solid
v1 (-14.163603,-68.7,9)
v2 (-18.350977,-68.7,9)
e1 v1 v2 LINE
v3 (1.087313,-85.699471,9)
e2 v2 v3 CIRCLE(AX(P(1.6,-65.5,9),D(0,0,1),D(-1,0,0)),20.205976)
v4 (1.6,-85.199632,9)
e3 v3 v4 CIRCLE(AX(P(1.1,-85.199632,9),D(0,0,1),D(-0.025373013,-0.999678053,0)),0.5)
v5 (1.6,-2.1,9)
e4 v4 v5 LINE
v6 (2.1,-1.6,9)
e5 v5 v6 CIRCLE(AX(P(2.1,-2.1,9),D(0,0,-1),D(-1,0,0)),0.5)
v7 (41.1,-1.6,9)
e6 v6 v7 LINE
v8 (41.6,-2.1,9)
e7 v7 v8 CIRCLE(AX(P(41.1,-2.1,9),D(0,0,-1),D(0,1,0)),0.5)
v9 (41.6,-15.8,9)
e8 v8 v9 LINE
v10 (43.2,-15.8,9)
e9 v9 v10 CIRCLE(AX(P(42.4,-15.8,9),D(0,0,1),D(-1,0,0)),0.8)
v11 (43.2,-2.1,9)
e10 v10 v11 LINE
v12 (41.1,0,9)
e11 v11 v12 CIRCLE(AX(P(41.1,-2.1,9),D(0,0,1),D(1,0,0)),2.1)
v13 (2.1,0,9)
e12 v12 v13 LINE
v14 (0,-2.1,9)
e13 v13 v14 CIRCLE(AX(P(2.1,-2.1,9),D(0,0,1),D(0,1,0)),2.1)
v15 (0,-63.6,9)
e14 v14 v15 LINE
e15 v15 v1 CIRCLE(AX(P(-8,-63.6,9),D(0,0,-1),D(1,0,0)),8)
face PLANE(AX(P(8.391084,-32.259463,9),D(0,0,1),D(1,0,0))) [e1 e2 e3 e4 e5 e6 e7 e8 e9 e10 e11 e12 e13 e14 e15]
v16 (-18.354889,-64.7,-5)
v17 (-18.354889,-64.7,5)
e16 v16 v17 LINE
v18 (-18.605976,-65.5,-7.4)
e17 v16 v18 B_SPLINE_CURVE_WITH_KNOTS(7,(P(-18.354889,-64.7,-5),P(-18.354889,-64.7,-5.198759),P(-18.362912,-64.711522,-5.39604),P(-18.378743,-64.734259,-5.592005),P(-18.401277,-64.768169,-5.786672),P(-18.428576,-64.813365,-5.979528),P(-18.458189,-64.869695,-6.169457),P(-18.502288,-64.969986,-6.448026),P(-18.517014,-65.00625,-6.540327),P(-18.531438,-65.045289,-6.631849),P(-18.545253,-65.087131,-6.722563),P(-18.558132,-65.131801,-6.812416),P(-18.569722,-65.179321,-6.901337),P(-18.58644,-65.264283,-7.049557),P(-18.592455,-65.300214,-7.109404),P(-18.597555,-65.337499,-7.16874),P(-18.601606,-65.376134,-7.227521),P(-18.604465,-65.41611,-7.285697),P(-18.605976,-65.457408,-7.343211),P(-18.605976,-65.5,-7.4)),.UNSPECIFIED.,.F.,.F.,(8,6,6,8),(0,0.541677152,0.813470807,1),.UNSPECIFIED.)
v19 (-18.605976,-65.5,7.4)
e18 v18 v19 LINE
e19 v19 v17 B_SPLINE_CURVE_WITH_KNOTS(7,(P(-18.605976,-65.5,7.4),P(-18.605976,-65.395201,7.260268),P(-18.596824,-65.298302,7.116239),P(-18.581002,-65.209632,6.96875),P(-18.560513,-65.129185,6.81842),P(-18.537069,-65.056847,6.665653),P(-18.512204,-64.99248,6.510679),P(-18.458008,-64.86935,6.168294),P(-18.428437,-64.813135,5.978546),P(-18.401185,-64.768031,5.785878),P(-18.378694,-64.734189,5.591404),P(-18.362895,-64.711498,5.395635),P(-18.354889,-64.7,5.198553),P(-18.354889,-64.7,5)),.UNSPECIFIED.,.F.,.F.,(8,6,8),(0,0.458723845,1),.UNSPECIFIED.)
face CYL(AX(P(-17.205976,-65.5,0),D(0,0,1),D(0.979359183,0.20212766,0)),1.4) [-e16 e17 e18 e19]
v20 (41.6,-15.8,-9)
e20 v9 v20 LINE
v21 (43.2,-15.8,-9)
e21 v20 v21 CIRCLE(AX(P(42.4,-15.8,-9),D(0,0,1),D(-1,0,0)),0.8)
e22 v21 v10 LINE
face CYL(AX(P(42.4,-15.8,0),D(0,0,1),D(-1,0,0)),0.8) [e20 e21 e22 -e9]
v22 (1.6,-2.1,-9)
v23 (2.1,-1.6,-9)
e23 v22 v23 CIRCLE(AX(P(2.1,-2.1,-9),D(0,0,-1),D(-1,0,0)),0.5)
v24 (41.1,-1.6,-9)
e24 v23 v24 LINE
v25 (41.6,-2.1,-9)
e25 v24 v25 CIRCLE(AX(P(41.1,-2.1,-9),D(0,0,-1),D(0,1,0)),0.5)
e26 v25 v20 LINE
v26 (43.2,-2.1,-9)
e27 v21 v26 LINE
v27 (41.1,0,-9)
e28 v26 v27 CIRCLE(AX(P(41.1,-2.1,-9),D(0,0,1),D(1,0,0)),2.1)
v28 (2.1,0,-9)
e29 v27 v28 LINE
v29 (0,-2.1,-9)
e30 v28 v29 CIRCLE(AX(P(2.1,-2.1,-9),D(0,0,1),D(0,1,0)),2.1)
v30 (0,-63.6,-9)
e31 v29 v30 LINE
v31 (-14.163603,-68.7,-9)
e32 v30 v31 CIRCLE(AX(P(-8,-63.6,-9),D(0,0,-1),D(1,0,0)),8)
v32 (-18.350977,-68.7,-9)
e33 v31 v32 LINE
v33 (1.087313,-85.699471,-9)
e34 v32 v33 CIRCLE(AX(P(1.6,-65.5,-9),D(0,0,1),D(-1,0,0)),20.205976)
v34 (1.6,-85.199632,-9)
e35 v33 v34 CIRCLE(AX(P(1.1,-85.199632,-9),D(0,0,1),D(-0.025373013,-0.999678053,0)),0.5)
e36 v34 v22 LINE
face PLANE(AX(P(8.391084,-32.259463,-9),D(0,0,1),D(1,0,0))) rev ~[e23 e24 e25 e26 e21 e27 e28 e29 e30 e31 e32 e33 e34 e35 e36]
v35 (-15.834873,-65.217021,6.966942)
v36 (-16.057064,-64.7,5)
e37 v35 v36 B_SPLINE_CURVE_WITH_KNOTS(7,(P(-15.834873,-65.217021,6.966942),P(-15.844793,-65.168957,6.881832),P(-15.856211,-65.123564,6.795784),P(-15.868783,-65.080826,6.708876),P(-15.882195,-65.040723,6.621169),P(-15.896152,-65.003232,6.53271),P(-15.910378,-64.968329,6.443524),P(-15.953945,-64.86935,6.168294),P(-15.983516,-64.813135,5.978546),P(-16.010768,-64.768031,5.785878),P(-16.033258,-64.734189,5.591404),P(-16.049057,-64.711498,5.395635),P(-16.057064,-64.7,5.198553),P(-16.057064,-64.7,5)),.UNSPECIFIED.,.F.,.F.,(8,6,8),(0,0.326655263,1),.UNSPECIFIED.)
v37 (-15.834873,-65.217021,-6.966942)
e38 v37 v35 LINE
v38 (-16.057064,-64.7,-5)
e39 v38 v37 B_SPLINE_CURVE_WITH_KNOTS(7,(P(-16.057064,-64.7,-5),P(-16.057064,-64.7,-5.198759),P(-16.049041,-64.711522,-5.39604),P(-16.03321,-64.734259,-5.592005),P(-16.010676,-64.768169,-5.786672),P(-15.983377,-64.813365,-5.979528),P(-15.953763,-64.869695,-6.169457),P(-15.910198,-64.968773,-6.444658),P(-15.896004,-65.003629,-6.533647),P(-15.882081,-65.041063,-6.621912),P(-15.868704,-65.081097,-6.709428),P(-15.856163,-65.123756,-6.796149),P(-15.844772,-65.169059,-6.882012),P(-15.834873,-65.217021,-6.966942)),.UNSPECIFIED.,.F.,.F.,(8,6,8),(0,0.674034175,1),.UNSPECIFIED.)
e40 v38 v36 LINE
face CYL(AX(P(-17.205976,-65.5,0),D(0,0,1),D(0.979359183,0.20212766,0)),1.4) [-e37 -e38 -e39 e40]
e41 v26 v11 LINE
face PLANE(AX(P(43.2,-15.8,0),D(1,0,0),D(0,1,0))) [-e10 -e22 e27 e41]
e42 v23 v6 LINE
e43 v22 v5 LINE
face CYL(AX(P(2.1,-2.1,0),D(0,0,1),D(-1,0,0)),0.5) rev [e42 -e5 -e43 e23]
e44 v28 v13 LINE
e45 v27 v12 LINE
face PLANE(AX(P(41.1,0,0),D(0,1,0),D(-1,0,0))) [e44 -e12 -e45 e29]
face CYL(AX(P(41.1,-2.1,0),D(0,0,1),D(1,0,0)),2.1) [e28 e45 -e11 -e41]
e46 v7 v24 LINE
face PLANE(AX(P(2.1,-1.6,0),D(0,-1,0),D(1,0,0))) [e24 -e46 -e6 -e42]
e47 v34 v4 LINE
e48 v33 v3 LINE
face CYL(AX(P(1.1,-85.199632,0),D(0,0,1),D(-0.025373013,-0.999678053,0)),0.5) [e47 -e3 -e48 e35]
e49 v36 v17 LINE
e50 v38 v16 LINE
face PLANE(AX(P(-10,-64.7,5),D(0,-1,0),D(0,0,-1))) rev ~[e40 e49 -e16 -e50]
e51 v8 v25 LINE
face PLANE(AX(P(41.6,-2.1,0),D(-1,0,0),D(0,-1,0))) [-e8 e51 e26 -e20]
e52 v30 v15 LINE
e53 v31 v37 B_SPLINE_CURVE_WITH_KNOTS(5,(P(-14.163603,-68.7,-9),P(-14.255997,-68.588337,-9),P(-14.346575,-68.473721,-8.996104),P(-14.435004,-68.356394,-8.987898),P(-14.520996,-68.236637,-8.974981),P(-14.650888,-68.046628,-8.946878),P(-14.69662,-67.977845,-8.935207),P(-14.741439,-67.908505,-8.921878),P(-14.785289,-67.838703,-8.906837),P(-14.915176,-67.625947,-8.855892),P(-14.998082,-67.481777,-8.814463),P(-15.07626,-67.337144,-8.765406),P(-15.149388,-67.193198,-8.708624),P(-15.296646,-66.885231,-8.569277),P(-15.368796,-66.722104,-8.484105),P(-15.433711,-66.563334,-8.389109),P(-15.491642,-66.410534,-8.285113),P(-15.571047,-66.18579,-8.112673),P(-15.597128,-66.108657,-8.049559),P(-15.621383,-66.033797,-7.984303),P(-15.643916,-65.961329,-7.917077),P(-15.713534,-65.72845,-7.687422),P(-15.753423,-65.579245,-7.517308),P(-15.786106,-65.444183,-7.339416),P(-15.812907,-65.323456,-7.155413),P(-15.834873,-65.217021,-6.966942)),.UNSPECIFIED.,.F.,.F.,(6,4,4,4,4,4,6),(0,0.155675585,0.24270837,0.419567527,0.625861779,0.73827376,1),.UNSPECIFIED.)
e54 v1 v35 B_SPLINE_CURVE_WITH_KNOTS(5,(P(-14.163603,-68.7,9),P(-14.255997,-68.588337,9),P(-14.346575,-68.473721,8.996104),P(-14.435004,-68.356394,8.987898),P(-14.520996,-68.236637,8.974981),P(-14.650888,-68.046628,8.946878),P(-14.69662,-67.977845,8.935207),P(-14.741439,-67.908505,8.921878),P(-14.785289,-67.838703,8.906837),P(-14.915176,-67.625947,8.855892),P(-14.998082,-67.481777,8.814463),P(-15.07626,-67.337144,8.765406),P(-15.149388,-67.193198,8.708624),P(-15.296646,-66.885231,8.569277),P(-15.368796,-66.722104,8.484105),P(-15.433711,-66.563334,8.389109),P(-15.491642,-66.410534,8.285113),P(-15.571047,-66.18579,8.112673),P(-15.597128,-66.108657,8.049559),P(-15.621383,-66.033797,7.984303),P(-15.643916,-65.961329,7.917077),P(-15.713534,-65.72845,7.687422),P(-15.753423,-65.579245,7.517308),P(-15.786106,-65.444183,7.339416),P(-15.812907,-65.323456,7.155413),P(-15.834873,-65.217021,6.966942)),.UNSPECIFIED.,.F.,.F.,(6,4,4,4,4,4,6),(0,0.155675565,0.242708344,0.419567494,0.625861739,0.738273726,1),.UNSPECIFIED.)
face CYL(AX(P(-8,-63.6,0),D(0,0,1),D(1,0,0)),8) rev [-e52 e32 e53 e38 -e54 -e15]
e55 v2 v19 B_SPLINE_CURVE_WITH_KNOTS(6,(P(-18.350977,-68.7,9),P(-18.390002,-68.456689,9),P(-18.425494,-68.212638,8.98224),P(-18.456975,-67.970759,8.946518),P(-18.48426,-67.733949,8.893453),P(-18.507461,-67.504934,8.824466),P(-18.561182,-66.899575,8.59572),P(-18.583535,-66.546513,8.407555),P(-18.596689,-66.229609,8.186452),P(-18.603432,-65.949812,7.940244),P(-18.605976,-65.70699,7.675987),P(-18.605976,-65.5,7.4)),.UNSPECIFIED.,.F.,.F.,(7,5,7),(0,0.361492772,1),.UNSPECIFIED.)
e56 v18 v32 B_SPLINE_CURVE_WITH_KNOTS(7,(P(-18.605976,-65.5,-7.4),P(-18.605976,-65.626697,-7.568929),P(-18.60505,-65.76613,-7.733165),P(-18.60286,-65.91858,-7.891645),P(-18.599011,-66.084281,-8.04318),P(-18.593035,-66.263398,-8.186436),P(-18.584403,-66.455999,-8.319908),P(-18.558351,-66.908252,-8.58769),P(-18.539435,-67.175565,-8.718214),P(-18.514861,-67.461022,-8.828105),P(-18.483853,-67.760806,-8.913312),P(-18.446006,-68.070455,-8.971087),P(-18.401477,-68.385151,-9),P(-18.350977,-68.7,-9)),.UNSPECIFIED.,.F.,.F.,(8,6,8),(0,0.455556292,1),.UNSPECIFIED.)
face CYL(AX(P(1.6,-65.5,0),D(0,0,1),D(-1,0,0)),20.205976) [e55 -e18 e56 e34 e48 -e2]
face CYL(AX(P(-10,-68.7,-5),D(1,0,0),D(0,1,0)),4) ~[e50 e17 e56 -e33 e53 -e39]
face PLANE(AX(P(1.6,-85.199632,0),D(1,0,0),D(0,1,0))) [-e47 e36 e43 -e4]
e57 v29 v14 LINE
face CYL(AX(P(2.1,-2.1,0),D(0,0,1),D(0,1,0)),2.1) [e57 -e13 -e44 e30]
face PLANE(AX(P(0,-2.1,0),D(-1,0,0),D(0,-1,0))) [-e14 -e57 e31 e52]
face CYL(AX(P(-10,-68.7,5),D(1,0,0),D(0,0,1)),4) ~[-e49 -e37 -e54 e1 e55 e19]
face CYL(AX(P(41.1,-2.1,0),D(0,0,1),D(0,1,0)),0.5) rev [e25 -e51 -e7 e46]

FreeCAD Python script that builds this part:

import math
import FreeCAD as App
import Part
import Sketcher

V = App.Vector
Q = App.Units.Quantity

doc = App.newDocument("Part")
params = doc.addObject("Spreadsheet::Sheet", "Params")
for row, (alias, value) in enumerate([
    ("sketch1_radius", "8 mm"),
    ("sketch1_radius2", "0.8 mm"),
    ("sketch1_radius3", "2.1 mm"),
    ("sketch1_radius4", "1.4 mm"),
    ("sketch1_width", "39 mm"),
    ("pad1_length", "18 mm"),
    ("sketch2_radius", "4 mm"),
    ("sketch2_width", "5 mm"),
    ("sketch2_height", "1 mm"),
    ("sketch2_height2", "20 mm"),
    ("pocket1_length", "20 mm"),
], start=1):
    params.set(f"A{row}", alias)
    params.set(f"B{row}", "=" + value)
    params.setAlias(f"B{row}", alias)

body = doc.addObject("PartDesign::Body", "Body")

# Sketch on XY plane
sketch1 = body.newObject("Sketcher::SketchObject", "Sketch")
sketch1.AttachmentSupport = (doc.getObject("XY_Plane"), [""])
sketch1.MapMode = "FlatFace"
sketch1.addGeometry([
    Part.ArcOfCircle(Part.Circle(V(42.4, -15.8, 0), V(0, 0, 1), 0.8), math.radians(180), math.radians(360)),  # 0
    Part.LineSegment(V(43.2, -15.8, 0), V(43.2, -2.1, 0)),  # 1
    Part.ArcOfCircle(Part.Circle(V(41.1, -2.1, 0), V(0, 0, 1), 2.1), math.radians(0), math.radians(90)),  # 2
    Part.LineSegment(V(41.1, 0, 0), V(2.1, 0, 0)),  # 3
    Part.ArcOfCircle(Part.Circle(V(2.1, -2.1, 0), V(0, 0, 1), 2.1), math.radians(90), math.radians(180)),  # 4
    Part.LineSegment(V(0, -2.1, 0), V(0, -63.6, 0)),  # 5
    Part.ArcOfCircle(Part.Circle(V(-8, -63.6, 0), V(0, 0, 1), 8), math.radians(-168), math.radians(0)),  # 6
    Part.ArcOfCircle(Part.Circle(V(-17.2, -65.5, 0), V(0, 0, 1), 1.4), math.radians(12), math.radians(180)),  # 7
    Part.ArcOfCircle(Part.Circle(V(1.6, -65.5, 0), V(0, 0, 1), 20.2), math.radians(180), math.radians(269)),  # 8
    Part.ArcOfCircle(Part.Circle(V(1.1, -85.2, 0), V(0, 0, 1), 0.5), math.radians(-91), math.radians(0)),  # 9
    Part.LineSegment(V(1.6, -85.2, 0), V(1.6, -2.1, 0)),  # 10
    Part.ArcOfCircle(Part.Circle(V(2.1, -2.1, 0), V(0, 0, 1), 0.5), math.radians(90), math.radians(180)),  # 11
    Part.LineSegment(V(2.1, -1.6, 0), V(41.1, -1.6, 0)),  # 12
    Part.ArcOfCircle(Part.Circle(V(41.1, -2.1, 0), V(0, 0, 1), 0.5), math.radians(0), math.radians(90)),  # 13
    Part.LineSegment(V(41.6, -2.1, 0), V(41.6, -15.8, 0)),  # 14
], False)
sketch1.addConstraint([
    Sketcher.Constraint("Tangent", 0, 2, 1, 1),
    Sketcher.Constraint("Tangent", 1, 2, 2, 1),
    Sketcher.Constraint("Tangent", 2, 2, 3, 1),
    Sketcher.Constraint("Tangent", 3, 2, 4, 1),
    Sketcher.Constraint("Tangent", 4, 2, 5, 1),
    Sketcher.Constraint("Tangent", 5, 2, 6, 2),
    Sketcher.Constraint("Tangent", 6, 1, 7, 1),
    Sketcher.Constraint("Tangent", 7, 2, 8, 1),
    Sketcher.Constraint("Tangent", 8, 2, 9, 1),
    Sketcher.Constraint("Tangent", 9, 2, 10, 1),
    Sketcher.Constraint("Tangent", 10, 2, 11, 2),
    Sketcher.Constraint("Tangent", 11, 1, 12, 1),
    Sketcher.Constraint("Tangent", 12, 2, 13, 2),
    Sketcher.Constraint("Tangent", 13, 1, 14, 1),
    Sketcher.Constraint("Tangent", 14, 2, 0, 1),
    Sketcher.Constraint("Vertical", 1),
    Sketcher.Constraint("Horizontal", 3),
    Sketcher.Constraint("Vertical", 5),
    Sketcher.Constraint("Vertical", 10),
    Sketcher.Constraint("Horizontal", 12),
    Sketcher.Constraint("Vertical", 14),
    Sketcher.Constraint("Coincident", 11, 3, 4, 3),
    Sketcher.Constraint("Coincident", 13, 3, 2, 3),
    Sketcher.Constraint("Equal", 2, 4),
    Sketcher.Constraint("Equal", 9, 11),
    Sketcher.Constraint("PointOnObject", 2, 2, -1),
    Sketcher.Constraint("PointOnObject", 4, 2, -2),
    Sketcher.Constraint("Horizontal", 7, 3, 8, 3),
    Sketcher.Constraint("Vertical", 8, 3, 9, 2),
    Sketcher.Constraint("Radius", 6, Q("8 mm")),
    Sketcher.Constraint("Radius", 0, Q("0.8 mm")),
    Sketcher.Constraint("Radius", 2, Q("2.1 mm")),
    Sketcher.Constraint("Radius", 7, Q("1.4 mm")),
    Sketcher.Constraint("DistanceX", 3, 2, 3, 1, Q("39 mm")),
    Sketcher.Constraint("DistanceY", 1, 1, 1, 2, Q("13.7 mm")),
    Sketcher.Constraint("DistanceY", 5, 2, 5, 1, Q("61.5 mm")),
    Sketcher.Constraint("DistanceY", 7, 3, -1, 1, Q("65.5 mm")),
])
sketch1.setExpression("Constraints[29]", "Params.sketch1_radius")
sketch1.setExpression("Constraints[30]", "Params.sketch1_radius2")
sketch1.setExpression("Constraints[31]", "Params.sketch1_radius3")
sketch1.setExpression("Constraints[32]", "Params.sketch1_radius4")
sketch1.setExpression("Constraints[33]", "Params.sketch1_width")
pad1 = body.newObject("PartDesign::Pad", "Pad")
pad1.Profile = sketch1
pad1.setExpression("Length", "Params.pad1_length")
pad1.Midplane = True

# Sketch on YZ plane
sketch2 = body.newObject("Sketcher::SketchObject", "Sketch001")
sketch2.AttachmentSupport = (doc.getObject("YZ_Plane"), [""])
sketch2.MapMode = "FlatFace"
sketch2.AttachmentOffset = App.Placement(V(0, 0, -10), App.Rotation())
sketch2.addGeometry([
    Part.ArcOfCircle(Part.Circle(V(-68.7, -5, 0), V(0, 0, 1), 4), math.radians(-90), math.radians(0)),  # 0
    Part.LineSegment(V(-68.7, -9, 0), V(-68.7, -10, 0)),  # 1
    Part.LineSegment(V(-68.7, -10, 0), V(-63.7, -10, 0)),  # 2
    Part.LineSegment(V(-63.7, -10, 0), V(-63.7, 10, 0)),  # 3
    Part.LineSegment(V(-63.7, 10, 0), V(-68.7, 10, 0)),  # 4
    Part.LineSegment(V(-68.7, 10, 0), V(-68.7, 9, 0)),  # 5
    Part.ArcOfCircle(Part.Circle(V(-68.7, 5, 0), V(0, 0, 1), 4), math.radians(0), math.radians(90)),  # 6
    Part.LineSegment(V(-64.7, 5, 0), V(-64.7, -5, 0)),  # 7
], False)
sketch2.addConstraint([
    Sketcher.Constraint("Coincident", 0, 1, 1, 1),
    Sketcher.Constraint("Coincident", 1, 2, 2, 1),
    Sketcher.Constraint("Coincident", 2, 2, 3, 1),
    Sketcher.Constraint("Coincident", 3, 2, 4, 1),
    Sketcher.Constraint("Coincident", 4, 2, 5, 1),
    Sketcher.Constraint("Coincident", 5, 2, 6, 2),
    Sketcher.Constraint("Tangent", 6, 1, 7, 1),
    Sketcher.Constraint("Tangent", 7, 2, 0, 2),
    Sketcher.Constraint("Vertical", 1),
    Sketcher.Constraint("Horizontal", 2),
    Sketcher.Constraint("Vertical", 3),
    Sketcher.Constraint("Horizontal", 4),
    Sketcher.Constraint("Vertical", 5),
    Sketcher.Constraint("Vertical", 7),
    Sketcher.Constraint("Equal", 0, 6),
    Sketcher.Constraint("Symmetric", 1, 2, 4, 2, -1),
    Sketcher.Constraint("Vertical", 6, 3, 0, 1),
    Sketcher.Constraint("Equal", 1, 5),
    Sketcher.Constraint("Radius", 0, Q("4 mm")),
    Sketcher.Constraint("DistanceX", 2, 1, 2, 2, Q("5 mm")),
    Sketcher.Constraint("DistanceY", 1, 2, 1, 1, Q("1 mm")),
    Sketcher.Constraint("DistanceY", 3, 1, 3, 2, Q("20 mm")),
    Sketcher.Constraint("DistanceX", 0, 3, -1, 1, Q("68.7 mm")),
])
sketch2.setExpression("Constraints[18]", "Params.sketch2_radius")
sketch2.setExpression("Constraints[19]", "Params.sketch2_width")
sketch2.setExpression("Constraints[20]", "Params.sketch2_height")
sketch2.setExpression("Constraints[21]", "Params.sketch2_height2")
pocket1 = body.newObject("PartDesign::Pocket", "Pocket")
pocket1.Profile = sketch2
pocket1.setExpression("Length", "Params.pocket1_length")

doc.recompute()
